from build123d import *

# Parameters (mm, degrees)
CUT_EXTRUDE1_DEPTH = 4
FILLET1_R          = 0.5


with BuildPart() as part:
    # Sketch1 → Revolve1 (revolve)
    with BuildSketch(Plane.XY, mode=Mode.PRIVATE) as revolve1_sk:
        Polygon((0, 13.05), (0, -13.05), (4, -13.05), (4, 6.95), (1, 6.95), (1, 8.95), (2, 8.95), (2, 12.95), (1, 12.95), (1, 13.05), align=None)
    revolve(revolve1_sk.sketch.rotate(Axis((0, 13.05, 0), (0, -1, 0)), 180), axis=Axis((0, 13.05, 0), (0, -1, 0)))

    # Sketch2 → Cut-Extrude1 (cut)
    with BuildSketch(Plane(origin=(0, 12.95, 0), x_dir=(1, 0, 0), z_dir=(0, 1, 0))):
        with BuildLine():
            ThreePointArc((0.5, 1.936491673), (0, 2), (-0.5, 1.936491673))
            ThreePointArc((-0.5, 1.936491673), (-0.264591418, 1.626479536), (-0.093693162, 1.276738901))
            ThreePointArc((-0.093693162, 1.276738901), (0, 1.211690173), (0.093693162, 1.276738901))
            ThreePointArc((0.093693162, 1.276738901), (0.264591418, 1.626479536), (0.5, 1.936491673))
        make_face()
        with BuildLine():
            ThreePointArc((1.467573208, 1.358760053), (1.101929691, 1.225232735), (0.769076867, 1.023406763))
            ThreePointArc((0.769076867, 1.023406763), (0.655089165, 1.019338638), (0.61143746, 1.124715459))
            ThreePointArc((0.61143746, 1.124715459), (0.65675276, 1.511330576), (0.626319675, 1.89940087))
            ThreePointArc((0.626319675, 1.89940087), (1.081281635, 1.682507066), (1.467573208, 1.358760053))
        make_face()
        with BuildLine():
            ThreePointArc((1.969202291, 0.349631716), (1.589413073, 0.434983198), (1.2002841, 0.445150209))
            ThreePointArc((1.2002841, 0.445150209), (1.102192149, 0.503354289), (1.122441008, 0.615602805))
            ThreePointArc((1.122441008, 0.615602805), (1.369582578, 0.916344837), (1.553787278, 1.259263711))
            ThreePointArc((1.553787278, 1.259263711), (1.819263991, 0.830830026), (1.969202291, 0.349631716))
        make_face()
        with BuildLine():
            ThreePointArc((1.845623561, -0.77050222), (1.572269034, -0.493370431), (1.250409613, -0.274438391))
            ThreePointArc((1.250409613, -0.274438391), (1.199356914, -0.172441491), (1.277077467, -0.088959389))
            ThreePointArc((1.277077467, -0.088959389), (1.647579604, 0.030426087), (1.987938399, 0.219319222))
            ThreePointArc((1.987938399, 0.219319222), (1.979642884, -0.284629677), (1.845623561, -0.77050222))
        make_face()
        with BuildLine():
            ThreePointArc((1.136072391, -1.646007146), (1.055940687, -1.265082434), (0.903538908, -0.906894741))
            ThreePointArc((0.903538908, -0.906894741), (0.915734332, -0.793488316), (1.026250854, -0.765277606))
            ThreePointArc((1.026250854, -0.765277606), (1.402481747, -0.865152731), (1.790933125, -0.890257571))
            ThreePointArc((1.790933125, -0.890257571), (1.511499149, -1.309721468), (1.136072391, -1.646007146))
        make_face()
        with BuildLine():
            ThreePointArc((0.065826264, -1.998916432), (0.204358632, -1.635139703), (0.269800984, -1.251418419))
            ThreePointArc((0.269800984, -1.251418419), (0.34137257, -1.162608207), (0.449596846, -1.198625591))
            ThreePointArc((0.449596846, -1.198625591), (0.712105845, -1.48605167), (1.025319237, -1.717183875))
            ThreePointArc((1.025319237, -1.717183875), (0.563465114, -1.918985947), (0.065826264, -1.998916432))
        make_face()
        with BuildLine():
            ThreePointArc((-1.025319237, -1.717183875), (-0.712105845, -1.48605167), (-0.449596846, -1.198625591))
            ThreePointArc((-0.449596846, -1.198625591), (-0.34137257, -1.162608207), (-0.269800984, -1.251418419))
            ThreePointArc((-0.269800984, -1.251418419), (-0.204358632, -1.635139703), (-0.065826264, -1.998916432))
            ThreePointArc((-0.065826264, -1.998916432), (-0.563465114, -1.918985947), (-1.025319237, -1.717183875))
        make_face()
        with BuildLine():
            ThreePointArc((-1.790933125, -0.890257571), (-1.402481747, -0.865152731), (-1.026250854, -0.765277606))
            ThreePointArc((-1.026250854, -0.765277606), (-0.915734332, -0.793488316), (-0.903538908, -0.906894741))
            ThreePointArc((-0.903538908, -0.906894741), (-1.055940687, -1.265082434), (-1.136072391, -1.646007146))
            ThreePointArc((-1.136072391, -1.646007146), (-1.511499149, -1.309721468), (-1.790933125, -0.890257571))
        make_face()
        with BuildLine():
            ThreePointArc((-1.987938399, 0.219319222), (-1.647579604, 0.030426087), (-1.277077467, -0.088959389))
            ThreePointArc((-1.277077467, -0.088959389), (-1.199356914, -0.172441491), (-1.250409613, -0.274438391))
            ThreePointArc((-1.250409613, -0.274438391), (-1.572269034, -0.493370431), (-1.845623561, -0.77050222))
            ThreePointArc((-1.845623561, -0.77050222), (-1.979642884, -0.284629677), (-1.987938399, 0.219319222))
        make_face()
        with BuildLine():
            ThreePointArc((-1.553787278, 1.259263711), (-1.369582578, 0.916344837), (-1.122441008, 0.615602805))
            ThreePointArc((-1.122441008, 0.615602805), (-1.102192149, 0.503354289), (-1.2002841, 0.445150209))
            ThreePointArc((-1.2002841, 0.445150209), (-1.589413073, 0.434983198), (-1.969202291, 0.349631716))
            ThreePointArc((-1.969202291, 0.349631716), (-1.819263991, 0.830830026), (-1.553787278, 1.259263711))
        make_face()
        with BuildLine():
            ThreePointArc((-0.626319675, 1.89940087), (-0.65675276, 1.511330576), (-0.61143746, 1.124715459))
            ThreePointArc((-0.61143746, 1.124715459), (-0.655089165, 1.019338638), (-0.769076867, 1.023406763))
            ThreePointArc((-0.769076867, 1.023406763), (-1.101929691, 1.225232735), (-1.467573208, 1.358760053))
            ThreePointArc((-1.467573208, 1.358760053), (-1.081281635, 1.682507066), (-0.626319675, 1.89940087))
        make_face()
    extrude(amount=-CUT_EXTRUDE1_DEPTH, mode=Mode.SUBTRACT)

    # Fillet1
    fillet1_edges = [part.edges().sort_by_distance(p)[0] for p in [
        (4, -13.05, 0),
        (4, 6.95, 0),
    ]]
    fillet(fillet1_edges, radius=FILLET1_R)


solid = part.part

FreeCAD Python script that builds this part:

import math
import FreeCAD as App
import Part
import Sketcher

V = App.Vector
Q = App.Units.Quantity


def edges_at(feature, points):
    """Names of the edges that pass closest to the given points."""
    edges = feature.Shape.Edges
    near = lambda p: min(range(len(edges)), key=lambda i: edges[i].distToShape(Part.Vertex(*p))[0])
    return sorted({f"Edge{near(p) + 1}" for p in points})


def add_polygon(sketch, points):
    """Adds a closed chain of lines whose ends are joined by coincident constraints."""
    first, n = sketch.GeometryCount, len(points)
    for a, b in zip(points, points[1:] + points[:1]):
        sketch.addGeometry(Part.LineSegment(App.Vector(*a, 0), App.Vector(*b, 0)), False)
    for i in range(n):
        sketch.addConstraint(Sketcher.Constraint("Coincident", first + i, 2, first + (i + 1) % n, 1))

doc = App.newDocument("Part")
body = doc.addObject("PartDesign::Body", "Body")

# Sketch on XY plane
sketch1 = body.newObject("Sketcher::SketchObject", "Sketch")
sketch1.AttachmentSupport = (doc.getObject("XY_Plane"), [""])
sketch1.MapMode = "FlatFace"
add_polygon(sketch1, [(0, 13.05), (0, -13.05), (4, -13.05), (4, 6.95), (1, 6.95), (1, 8.95), (2, 8.95), (2, 12.95), (1, 12.95), (1, 13.05)])  # lines 0-9
sketch1.addConstraint(Sketcher.Constraint("Vertical", 0))
sketch1.addConstraint(Sketcher.Constraint("Horizontal", 1))
sketch1.addConstraint(Sketcher.Constraint("Vertical", 2))
sketch1.addConstraint(Sketcher.Constraint("Horizontal", 3))
sketch1.addConstraint(Sketcher.Constraint("Vertical", 4))
sketch1.addConstraint(Sketcher.Constraint("Horizontal", 5))
sketch1.addConstraint(Sketcher.Constraint("Vertical", 6))
sketch1.addConstraint(Sketcher.Constraint("Horizontal", 7))
sketch1.addConstraint(Sketcher.Constraint("Vertical", 8))
sketch1.addConstraint(Sketcher.Constraint("Horizontal", 9))
sketch1.addConstraint(Sketcher.Constraint("Symmetric", 0, 2, 9, 2, -1, 1))
sketch1.addConstraint(Sketcher.Constraint("Vertical", 4, 2, 7, 2))
sketch1.addConstraint(Sketcher.Constraint("Equal", 7, 9))
sketch1.addConstraint(Sketcher.Constraint("Equal", 1, 6))
sketch1.addConstraint(Sketcher.Constraint("DistanceX", 1, 1, 1, 2, Q("4 mm")))
sketch1.addConstraint(Sketcher.Constraint("DistanceX", 3, 2, 3, 1, Q("3 mm")))
sketch1.addConstraint(Sketcher.Constraint("DistanceY", 2, 1, 2, 2, Q("20 mm")))
sketch1.addConstraint(Sketcher.Constraint("DistanceY", 4, 1, 4, 2, Q("2 mm")))
sketch1.addConstraint(Sketcher.Constraint("DistanceY", 0, 2, 0, 1, Q("26.1 mm")))
revolution = body.newObject("PartDesign::Revolution", "Revolution")
revolution.Profile = sketch1
revolution.ReferenceAxis = (sketch1, ["V_Axis"])
revolution.Angle = 360

# Sketch on XZ plane
sketch2 = body.newObject("Sketcher::SketchObject", "Sketch001")
sketch2.AttachmentSupport = (doc.getObject("XZ_Plane"), [""])
sketch2.MapMode = "FlatFace"
sketch2.AttachmentOffset = App.Placement(V(0, 0, -12.95), App.Rotation())
sketch2.addGeometry(Part.ArcOfCircle(Part.Circle(V(0, 0, 0), V(0, 0, 1), 2), math.radians(-104.477512), math.radians(-75.522488)), False)
sketch2.addGeometry(Part.ArcOfCircle(Part.Circle(V(-1.967556, -0.577713, 0), V(0, 0, 1), 2), math.radians(-42.795924), math.radians(-20.457513)), False)
sketch2.addGeometry(Part.ArcOfCircle(Part.Circle(V(0, -1.31169, 0), V(0, 0, 1), 0.1), math.radians(20.457514), math.radians(159.542486)), False)
sketch2.addGeometry(Part.ArcOfCircle(Part.Circle(V(1.967556, -0.577713, 0), V(0, 0, 1), 2), math.radians(-159.542487), math.radians(-137.204076)), False)
sketch2.addGeometry(Part.ArcOfCircle(Part.Circle(V(1.967549, 0.577738, 0), V(0, 0, 1), 2), math.radians(-126.815214), math.radians(-104.476804)), False)
sketch2.addGeometry(Part.ArcOfCircle(Part.Circle(V(0, 0, 0), V(0, 0, 1), 2), math.radians(-71.750239), math.radians(-42.795215)), False)
sketch2.addGeometry(Part.ArcOfCircle(Part.Circle(V(-1.342878, -1.549745, 0), V(0, 0, 1), 2), math.radians(-10.068651), math.radians(12.269759)), False)
sketch2.addGeometry(Part.ArcOfCircle(Part.Circle(V(0.709153, -1.103464, 0), V(0, 0, 1), 0.1), math.radians(53.184786), math.radians(192.26976)), False)
sketch2.addGeometry(Part.ArcOfCircle(Part.Circle(V(1.342859, 1.549761, 0), V(0, 0, 1), 2), math.radians(-94.087941), math.radians(-71.749531)), False)
sketch2.addGeometry(Part.ArcOfCircle(Part.Circle(V(0, 0, 0), V(0, 0, 1), 2), math.radians(-39.022967), math.radians(-10.067942)), False)
sketch2.addGeometry(Part.ArcOfCircle(Part.Circle(V(-0.291846, -2.029743, 0), V(0, 0, 1), 2), math.radians(22.658622), math.radians(44.997032)), False)
sketch2.addGeometry(Part.ArcOfCircle(Part.Circle(V(1.193155, -0.544896, 0), V(0, 0, 1), 0.1), math.radians(85.912059), math.radians(224.997032)), False)
sketch2.addGeometry(Part.ArcOfCircle(Part.Circle(V(0.291821, 2.029747, 0), V(0, 0, 1), 2), math.radians(-61.360668), math.radians(-39.022258)), False)
sketch2.addGeometry(Part.ArcOfCircle(Part.Circle(V(0, 0, 0), V(0, 0, 1), 2), math.radians(-6.295694), math.radians(22.65933)), False)
sketch2.addGeometry(Part.ArcOfCircle(Part.Circle(V(0.851846, -1.865312, 0), V(0, 0, 1), 2), math.radians(55.385894), math.radians(77.724305)), False)
sketch2.addGeometry(Part.ArcOfCircle(Part.Circle(V(1.298339, 0.186673, 0), V(0, 0, 1), 0.1), math.radians(118.639332), math.radians(257.724304)), False)
sketch2.addGeometry(Part.ArcOfCircle(Part.Circle(V(-0.851869, 1.865302, 0), V(0, 0, 1), 2), math.radians(-28.633396), math.radians(-6.294985)), False)
sketch2.addGeometry(Part.ArcOfCircle(Part.Circle(V(0, 0, 0), V(0, 0, 1), 2), math.radians(26.431579), math.radians(55.386603)), False)
sketch2.addGeometry(Part.ArcOfCircle(Part.Circle(V(1.725082, -1.108658, 0), V(0, 0, 1), 2), math.radians(88.113167), math.radians(110.451578)), False)
sketch2.addGeometry(Part.ArcOfCircle(Part.Circle(V(0.991309, 0.858974, 0), V(0, 0, 1), 0.1), math.radians(151.366605), math.radians(290.451577)), False)
sketch2.addGeometry(Part.ArcOfCircle(Part.Circle(V(-1.725096, 1.108637, 0), V(0, 0, 1), 2), math.radians(4.093877), math.radians(26.432287)), False)
sketch2.addGeometry(Part.ArcOfCircle(Part.Circle(V(0, 0, 0), V(0, 0, 1), 2), math.radians(59.158851), math.radians(88.113876)), False)
sketch2.addGeometry(Part.ArcOfCircle(Part.Circle(V(2.050617, -0.000013, 0), V(0, 0, 1), 2), math.radians(120.84044), math.radians(143.17885)), False)
sketch2.addGeometry(Part.ArcOfCircle(Part.Circle(V(0.369546, 1.258558, 0), V(0, 0, 1), 0.1), math.radians(-175.906122), math.radians(-36.82115)), False)
sketch2.addGeometry(Part.ArcOfCircle(Part.Circle(V(-2.050617, -0.000013, 0), V(0, 0, 1), 2), math.radians(36.82115), math.radians(59.15956)), False)
sketch2.addGeometry(Part.ArcOfCircle(Part.Circle(V(0, 0, 0), V(0, 0, 1), 2), math.radians(91.886124), math.radians(120.841149)), False)
sketch2.addGeometry(Part.ArcOfCircle(Part.Circle(V(1.725096, 1.108637, 0), V(0, 0, 1), 2), math.radians(153.567713), math.radians(175.906123)), False)
sketch2.addGeometry(Part.ArcOfCircle(Part.Circle(V(-0.369546, 1.258558, 0), V(0, 0, 1), 0.1), math.radians(-143.17885), math.radians(-4.093878)), False)
sketch2.addGeometry(Part.ArcOfCircle(Part.Circle(V(-1.725082, -1.108658, 0), V(0, 0, 1), 2), math.radians(69.548422), math.radians(91.886833)), False)
sketch2.addGeometry(Part.ArcOfCircle(Part.Circle(V(0, 0, 0), V(0, 0, 1), 2), math.radians(124.613397), math.radians(153.568421)), False)
sketch2.addGeometry(Part.ArcOfCircle(Part.Circle(V(0.851869, 1.865302, 0), V(0, 0, 1), 2), math.radians(-173.705015), math.radians(-151.366604)), False)
sketch2.addGeometry(Part.ArcOfCircle(Part.Circle(V(-0.991309, 0.858974, 0), V(0, 0, 1), 0.1), math.radians(-110.451577), math.radians(28.633395)), False)
sketch2.addGeometry(Part.ArcOfCircle(Part.Circle(V(-0.851846, -1.865312, 0), V(0, 0, 1), 2), math.radians(102.275695), math.radians(124.614106)), False)
sketch2.addGeometry(Part.ArcOfCircle(Part.Circle(V(0, 0, 0), V(0, 0, 1), 2), math.radians(157.34067), math.radians(186.295694)), False)
sketch2.addGeometry(Part.ArcOfCircle(Part.Circle(V(-0.291821, 2.029747, 0), V(0, 0, 1), 2), math.radians(-140.977742), math.radians(-118.639332)), False)
sketch2.addGeometry(Part.ArcOfCircle(Part.Circle(V(-1.298339, 0.186673, 0), V(0, 0, 1), 0.1), math.radians(-77.724304), math.radians(61.360668)), False)
sketch2.addGeometry(Part.ArcOfCircle(Part.Circle(V(0.291846, -2.029743, 0), V(0, 0, 1), 2), math.radians(135.002968), math.radians(157.341378)), False)
sketch2.addGeometry(Part.ArcOfCircle(Part.Circle(V(0, 0, 0), V(0, 0, 1), 2), math.radians(-169.932058), math.radians(-140.977033)), False)
sketch2.addGeometry(Part.ArcOfCircle(Part.Circle(V(-1.342859, 1.549761, 0), V(0, 0, 1), 2), math.radians(-108.250469), math.radians(-85.912059)), False)
sketch2.addGeometry(Part.ArcOfCircle(Part.Circle(V(-1.193155, -0.544896, 0), V(0, 0, 1), 0.1), math.radians(-44.997032), math.radians(94.087941)), False)
sketch2.addGeometry(Part.ArcOfCircle(Part.Circle(V(1.342878, -1.549745, 0), V(0, 0, 1), 2), math.radians(167.730241), math.radians(190.068651)), False)
sketch2.addGeometry(Part.ArcOfCircle(Part.Circle(V(0, 0, 0), V(0, 0, 1), 2), math.radians(-137.204785), math.radians(-108.249761)), False)
sketch2.addGeometry(Part.ArcOfCircle(Part.Circle(V(-1.967549, 0.577738, 0), V(0, 0, 1), 2), math.radians(-75.523196), math.radians(-53.184786)), False)
sketch2.addGeometry(Part.ArcOfCircle(Part.Circle(V(-0.709153, -1.103464, 0), V(0, 0, 1), 0.1), math.radians(-12.26976), math.radians(126.815214)), False)
sketch2.addConstraint(Sketcher.Constraint("Coincident", 0, 1, 1, 1))
sketch2.addConstraint(Sketcher.Constraint("Tangent", 1, 2, 2, 2))
sketch2.addConstraint(Sketcher.Constraint("Tangent", 2, 1, 3, 1))
sketch2.addConstraint(Sketcher.Constraint("Coincident", 3, 2, 0, 2))
sketch2.addConstraint(Sketcher.Constraint("Coincident", 4, 2, 5, 2))
sketch2.addConstraint(Sketcher.Constraint("Coincident", 5, 1, 6, 1))
sketch2.addConstraint(Sketcher.Constraint("Tangent", 6, 2, 7, 2))
sketch2.addConstraint(Sketcher.Constraint("Tangent", 7, 1, 4, 1))
sketch2.addConstraint(Sketcher.Constraint("Coincident", 8, 2, 9, 2))
sketch2.addConstraint(Sketcher.Constraint("Coincident", 9, 1, 10, 1))
sketch2.addConstraint(Sketcher.Constraint("Tangent", 10, 2, 11, 2))
sketch2.addConstraint(Sketcher.Constraint("Tangent", 11, 1, 8, 1))
sketch2.addConstraint(Sketcher.Constraint("Coincident", 12, 2, 13, 2))
sketch2.addConstraint(Sketcher.Constraint("Coincident", 13, 1, 14, 1))
sketch2.addConstraint(Sketcher.Constraint("Tangent", 14, 2, 15, 2))
sketch2.addConstraint(Sketcher.Constraint("Tangent", 15, 1, 12, 1))
sketch2.addConstraint(Sketcher.Constraint("Coincident", 16, 2, 17, 2))
sketch2.addConstraint(Sketcher.Constraint("Coincident", 17, 1, 18, 1))
sketch2.addConstraint(Sketcher.Constraint("Tangent", 18, 2, 19, 2))
sketch2.addConstraint(Sketcher.Constraint("Tangent", 19, 1, 16, 1))
sketch2.addConstraint(Sketcher.Constraint("Coincident", 20, 2, 21, 2))
sketch2.addConstraint(Sketcher.Constraint("Coincident", 21, 1, 22, 1))
sketch2.addConstraint(Sketcher.Constraint("Tangent", 22, 2, 23, 2))
sketch2.addConstraint(Sketcher.Constraint("Tangent", 23, 1, 20, 1))
sketch2.addConstraint(Sketcher.Constraint("Coincident", 24, 2, 25, 2))
sketch2.addConstraint(Sketcher.Constraint("Coincident", 25, 1, 26, 1))
sketch2.addConstraint(Sketcher.Constraint("Tangent", 26, 2, 27, 2))
sketch2.addConstraint(Sketcher.Constraint("Tangent", 27, 1, 24, 1))
sketch2.addConstraint(Sketcher.Constraint("Coincident", 28, 2, 29, 2))
sketch2.addConstraint(Sketcher.Constraint("Coincident", 29, 1, 30, 1))
sketch2.addConstraint(Sketcher.Constraint("Tangent", 30, 2, 31, 2))
sketch2.addConstraint(Sketcher.Constraint("Tangent", 31, 1, 28, 1))
sketch2.addConstraint(Sketcher.Constraint("Coincident", 32, 2, 33, 2))
sketch2.addConstraint(Sketcher.Constraint("Coincident", 33, 1, 34, 1))
sketch2.addConstraint(Sketcher.Constraint("Tangent", 34, 2, 35, 2))
sketch2.addConstraint(Sketcher.Constraint("Tangent", 35, 1, 32, 1))
sketch2.addConstraint(Sketcher.Constraint("Coincident", 36, 2, 37, 2))
sketch2.addConstraint(Sketcher.Constraint("Coincident", 37, 1, 38, 1))
sketch2.addConstraint(Sketcher.Constraint("Tangent", 38, 2, 39, 2))
sketch2.addConstraint(Sketcher.Constraint("Tangent", 39, 1, 36, 1))
sketch2.addConstraint(Sketcher.Constraint("Coincident", 40, 2, 41, 2))
sketch2.addConstraint(Sketcher.Constraint("Coincident", 41, 1, 42, 1))
sketch2.addConstraint(Sketcher.Constraint("Tangent", 42, 2, 43, 2))
sketch2.addConstraint(Sketcher.Constraint("Tangent", 43, 1, 40, 1))
sketch2.addConstraint(Sketcher.Constraint("Coincident", 0, 3, -1, 1))
sketch2.addConstraint(Sketcher.Constraint("Coincident", 5, 3, -1, 1))
sketch2.addConstraint(Sketcher.Constraint("Coincident", 9, 3, -1, 1))
sketch2.addConstraint(Sketcher.Constraint("Coincident", 13, 3, -1, 1))
sketch2.addConstraint(Sketcher.Constraint("Coincident", 17, 3, -1, 1))
sketch2.addConstraint(Sketcher.Constraint("Coincident", 21, 3, -1, 1))
sketch2.addConstraint(Sketcher.Constraint("Coincident", 25, 3, -1, 1))
sketch2.addConstraint(Sketcher.Constraint("Coincident", 29, 3, -1, 1))
sketch2.addConstraint(Sketcher.Constraint("Coincident", 33, 3, -1, 1))
sketch2.addConstraint(Sketcher.Constraint("Coincident", 37, 3, -1, 1))
sketch2.addConstraint(Sketcher.Constraint("Coincident", 41, 3, -1, 1))
sketch2.addConstraint(Sketcher.Constraint("Equal", 0, 1))
sketch2.addConstraint(Sketcher.Constraint("Equal", 1, 3))
sketch2.addConstraint(Sketcher.Constraint("Equal", 3, 4))
sketch2.addConstraint(Sketcher.Constraint("Equal", 4, 5))
sketch2.addConstraint(Sketcher.Constraint("Equal", 5, 6))
sketch2.addConstraint(Sketcher.Constraint("Equal", 2, 7))
sketch2.addConstraint(Sketcher.Constraint("Equal", 6, 8))
sketch2.addConstraint(Sketcher.Constraint("Equal", 8, 9))
sketch2.addConstraint(Sketcher.Constraint("Equal", 9, 10))
sketch2.addConstraint(Sketcher.Constraint("Equal", 7, 11))
sketch2.addConstraint(Sketcher.Constraint("Equal", 10, 12))
sketch2.addConstraint(Sketcher.Constraint("Equal", 12, 13))
sketch2.addConstraint(Sketcher.Constraint("Equal", 13, 14))
sketch2.addConstraint(Sketcher.Constraint("Equal", 11, 15))
sketch2.addConstraint(Sketcher.Constraint("Equal", 14, 16))
sketch2.addConstraint(Sketcher.Constraint("Equal", 16, 17))
sketch2.addConstraint(Sketcher.Constraint("Equal", 17, 18))
sketch2.addConstraint(Sketcher.Constraint("Equal", 15, 19))
sketch2.addConstraint(Sketcher.Constraint("Equal", 18, 20))
sketch2.addConstraint(Sketcher.Constraint("Equal", 20, 21))
sketch2.addConstraint(Sketcher.Constraint("Equal", 21, 22))
sketch2.addConstraint(Sketcher.Constraint("Equal", 19, 23))
sketch2.addConstraint(Sketcher.Constraint("Equal", 22, 24))
sketch2.addConstraint(Sketcher.Constraint("Equal", 24, 25))
sketch2.addConstraint(Sketcher.Constraint("Equal", 25, 26))
sketch2.addConstraint(Sketcher.Constraint("Equal", 23, 27))
sketch2.addConstraint(Sketcher.Constraint("Equal", 26, 28))
sketch2.addConstraint(Sketcher.Constraint("Equal", 28, 29))
sketch2.addConstraint(Sketcher.Constraint("Equal", 29, 30))
sketch2.addConstraint(Sketcher.Constraint("Equal", 27, 31))
sketch2.addConstraint(Sketcher.Constraint("Equal", 30, 32))
sketch2.addConstraint(Sketcher.Constraint("Equal", 32, 33))
sketch2.addConstraint(Sketcher.Constraint("Equal", 33, 34))
sketch2.addConstraint(Sketcher.Constraint("Equal", 31, 35))
sketch2.addConstraint(Sketcher.Constraint("Equal", 34, 36))
sketch2.addConstraint(Sketcher.Constraint("Equal", 36, 37))
sketch2.addConstraint(Sketcher.Constraint("Equal", 37, 38))
sketch2.addConstraint(Sketcher.Constraint("Equal", 35, 39))
sketch2.addConstraint(Sketcher.Constraint("Equal", 38, 40))
sketch2.addConstraint(Sketcher.Constraint("Equal", 40, 41))
sketch2.addConstraint(Sketcher.Constraint("Equal", 41, 42))
sketch2.addConstraint(Sketcher.Constraint("Equal", 39, 43))
sketch2.addConstraint(Sketcher.Constraint("Symmetric", 1, 3, 3, 3, -2))
sketch2.addConstraint(Sketcher.Constraint("Symmetric", 22, 3, 24, 3, -2))
sketch2.addConstraint(Sketcher.Constraint("Symmetric", 20, 3, 26, 3, -2))
sketch2.addConstraint(Sketcher.Constraint("Symmetric", 18, 3, 28, 3, -2))
sketch2.addConstraint(Sketcher.Constraint("Symmetric", 16, 3, 30, 3, -2))
sketch2.addConstraint(Sketcher.Constraint("Symmetric", 14, 3, 32, 3, -2))
sketch2.addConstraint(Sketcher.Constraint("Symmetric", 12, 3, 34, 3, -2))
sketch2.addConstraint(Sketcher.Constraint("Symmetric", 10, 3, 36, 3, -2))
sketch2.addConstraint(Sketcher.Constraint("Symmetric", 8, 3, 38, 3, -2))
sketch2.addConstraint(Sketcher.Constraint("Symmetric", 6, 3, 40, 3, -2))
sketch2.addConstraint(Sketcher.Constraint("Symmetric", 4, 3, 42, 3, -2))
sketch2.addConstraint(Sketcher.Constraint("Radius", 0, Q("2 mm")))
sketch2.addConstraint(Sketcher.Constraint("Radius", 2, Q("0.1 mm")))
sketch2.addConstraint(Sketcher.Constraint("DistanceX", 0, 1, -1, 1, Q("0.5 mm")))
sketch2.addConstraint(Sketcher.Constraint("DistanceY", -1, 1, 16, 3, Q("1.865302 mm")))
sketch2.addConstraint(Sketcher.Constraint("DistanceY", 5, 1, -1, 1, Q("1.899401 mm")))
sketch2.addConstraint(Sketcher.Constraint("DistanceX", -1, 1, 23, 1, Q("0.269801 mm")))
sketch2.addConstraint(Sketcher.Constraint("DistanceY", 2, 3, -1, 1, Q("1.31169 mm")))
sketch2.addConstraint(Sketcher.Constraint("DistanceX", -1, 1, 4, 3, Q("1.967549 mm")))
sketch2.addConstraint(Sketcher.Constraint("DistanceX", 6, 3, -1, 1, Q("1.342878 mm")))
sketch2.addConstraint(Sketcher.Constraint("DistanceX", -1, 1, 8, 3, Q("1.342859 mm")))
sketch2.addConstraint(Sketcher.Constraint("DistanceY", -1, 1, 8, 3, Q("1.549761 mm")))
sketch2.addConstraint(Sketcher.Constraint("DistanceX", -1, 1, 12, 3, Q("0.291821 mm")))
sketch2.addConstraint(Sketcher.Constraint("DistanceX", -1, 1, 15, 3, Q("1.298339 mm")))
sketch2.addConstraint(Sketcher.Constraint("DistanceX", 16, 3, -1, 1, Q("0.851869 mm")))
sketch2.addConstraint(Sketcher.Constraint("DistanceY", 18, 3, -1, 1, Q("1.108658 mm")))
sketch2.addConstraint(Sketcher.Constraint("DistanceX", -1, 1, 19, 3, Q("0.991309 mm")))
sketch2.addConstraint(Sketcher.Constraint("DistanceY", 4, 2, -1, 1, Q("1.35876 mm")))
sketch2.addConstraint(Sketcher.Constraint("DistanceX", -1, 1, 10, 2, Q("1.122441 mm")))
sketch2.addConstraint(Sketcher.Constraint("DistanceX", -1, 1, 13, 1, Q("1.987938 mm")))
sketch2.addConstraint(Sketcher.Constraint("DistanceY", -1, 1, 14, 2, Q("0.088959 mm")))
sketch2.addConstraint(Sketcher.Constraint("DistanceX", -1, 1, 21, 1, Q("1.025319 mm")))
sketch2.addConstraint(Sketcher.Constraint("DistanceY", -1, 1, 23, 1, Q("1.251418 mm")))
sketch2.addConstraint(Sketcher.Constraint("DistanceX", 10, 3, -1, 1, Q("0.291846 mm")))
sketch2.addConstraint(Sketcher.Constraint("DistanceX", 20, 3, -1, 1, Q("1.725096 mm")))
pocket1 = body.newObject("PartDesign::Pocket", "Pocket")
pocket1.Profile = sketch2
pocket1.Length = 4
pocket1.Reversed = True
doc.recompute()

fillet = body.newObject("PartDesign::Fillet", "Fillet")
fillet.Base = (pocket1, edges_at(pocket1, [(4, -13.05, 0), (4, 6.95, 0)]))
fillet.Radius = 0.5

doc.recompute()
